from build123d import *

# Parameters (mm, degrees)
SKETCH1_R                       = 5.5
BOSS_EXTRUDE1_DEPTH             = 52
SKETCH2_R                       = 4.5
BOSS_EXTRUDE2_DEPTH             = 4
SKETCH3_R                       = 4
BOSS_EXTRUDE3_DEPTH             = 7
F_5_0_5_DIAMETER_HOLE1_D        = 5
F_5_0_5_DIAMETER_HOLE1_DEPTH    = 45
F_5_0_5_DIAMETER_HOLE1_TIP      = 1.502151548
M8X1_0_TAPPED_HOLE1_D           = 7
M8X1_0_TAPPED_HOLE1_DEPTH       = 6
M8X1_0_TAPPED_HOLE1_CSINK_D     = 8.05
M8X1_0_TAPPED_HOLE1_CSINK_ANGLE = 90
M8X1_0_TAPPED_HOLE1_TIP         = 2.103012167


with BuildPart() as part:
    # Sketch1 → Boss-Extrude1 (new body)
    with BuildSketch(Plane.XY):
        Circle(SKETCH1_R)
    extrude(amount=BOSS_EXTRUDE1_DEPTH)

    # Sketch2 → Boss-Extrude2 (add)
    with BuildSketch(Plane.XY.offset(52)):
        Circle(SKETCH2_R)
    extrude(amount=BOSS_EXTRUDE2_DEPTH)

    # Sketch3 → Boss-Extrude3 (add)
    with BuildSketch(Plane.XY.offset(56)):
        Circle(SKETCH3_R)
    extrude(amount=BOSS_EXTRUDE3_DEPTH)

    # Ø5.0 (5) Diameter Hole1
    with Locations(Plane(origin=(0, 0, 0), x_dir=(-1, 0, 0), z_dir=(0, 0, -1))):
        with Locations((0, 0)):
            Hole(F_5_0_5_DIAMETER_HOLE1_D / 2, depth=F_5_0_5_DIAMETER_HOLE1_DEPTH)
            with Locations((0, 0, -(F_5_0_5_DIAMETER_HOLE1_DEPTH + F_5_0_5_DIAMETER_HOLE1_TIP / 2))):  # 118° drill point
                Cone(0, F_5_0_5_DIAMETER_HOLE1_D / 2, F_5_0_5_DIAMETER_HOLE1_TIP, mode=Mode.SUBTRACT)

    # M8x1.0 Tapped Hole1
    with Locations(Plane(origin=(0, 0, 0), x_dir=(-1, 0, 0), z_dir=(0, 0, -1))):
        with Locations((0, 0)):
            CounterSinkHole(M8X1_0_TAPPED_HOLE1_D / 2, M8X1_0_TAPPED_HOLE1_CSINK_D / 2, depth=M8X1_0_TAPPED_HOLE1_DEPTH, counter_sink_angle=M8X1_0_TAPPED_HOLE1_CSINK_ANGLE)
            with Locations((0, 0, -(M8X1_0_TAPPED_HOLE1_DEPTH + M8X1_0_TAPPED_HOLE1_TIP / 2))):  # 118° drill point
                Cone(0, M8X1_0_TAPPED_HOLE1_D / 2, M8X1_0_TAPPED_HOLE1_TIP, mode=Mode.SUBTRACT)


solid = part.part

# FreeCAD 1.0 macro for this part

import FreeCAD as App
import Part
import Sketcher
from FreeCAD import Vector
Q = App.Units.Quantity

doc = App.newDocument("Part")
body = doc.addObject("PartDesign::Body", "Body")

# Sketch on XY plane
sketch1 = body.newObject("Sketcher::SketchObject", "Sketch")
sketch1.AttachmentSupport = (doc.getObject("XY_Plane"), [""])
sketch1.MapMode = "FlatFace"
sketch1.addGeometry(Part.Circle(Vector(0, 0, 0), Vector(0, 0, 1), 6), False)
sketch1.addConstraint([
    Sketcher.Constraint("Coincident", 0, 3, -1, 1),
    Sketcher.Constraint("Diameter", 0, Q("11 mm")),
])
pad1 = body.newObject("PartDesign::Pad", "Pad")
pad1.Profile = sketch1
pad1.Length = 52

# Sketch on XY plane
sketch2 = body.newObject("Sketcher::SketchObject", "Sketch001")
sketch2.AttachmentSupport = (doc.getObject("XY_Plane"), [""])
sketch2.MapMode = "FlatFace"
sketch2.AttachmentOffset = App.Placement(Vector(0, 0, 52), App.Rotation())
sketch2.addGeometry(Part.Circle(Vector(0, 0, 0), Vector(0, 0, 1), 4.5), False)
sketch2.addConstraint([
    Sketcher.Constraint("Coincident", 0, 3, -1, 1),
    Sketcher.Constraint("Diameter", 0, Q("9 mm")),
])
pad2 = body.newObject("PartDesign::Pad", "Pad001")
pad2.Profile = sketch2
pad2.Length = 4

# Sketch on XY plane
sketch3 = body.newObject("Sketcher::SketchObject", "Sketch002")
sketch3.AttachmentSupport = (doc.getObject("XY_Plane"), [""])
sketch3.MapMode = "FlatFace"
sketch3.AttachmentOffset = App.Placement(Vector(0, 0, 56), App.Rotation())
sketch3.addGeometry(Part.Circle(Vector(0, 0, 0), Vector(0, 0, 1), 4), False)
sketch3.addConstraint([
    Sketcher.Constraint("Coincident", 0, 3, -1, 1),
    Sketcher.Constraint("Diameter", 0, Q("8 mm")),
])
pad3 = body.newObject("PartDesign::Pad", "Pad002")
pad3.Profile = sketch3
pad3.Length = 7

# Sketch on XY plane
sketch4 = body.newObject("Sketcher::SketchObject", "Sketch003")
sketch4.AttachmentSupport = (doc.getObject("XY_Plane"), [""])
sketch4.MapMode = "FlatFace"
sketch4.addGeometry(Part.Circle(Vector(0, 0, 0), Vector(0, 0, 1), 2.5), False)
sketch4.addConstraint([
    Sketcher.Constraint("Coincident", 0, 3, -1, 1),
    Sketcher.Constraint("Diameter", 0, Q("5 mm")),
])
doc.recompute()
hole = body.newObject("PartDesign::Hole", "Hole")
hole.Profile = sketch4
hole.ThreadType = "None"
hole.Diameter = 5
hole.DepthType = "Dimension"
hole.Depth = 45
hole.DrillPoint = "Angled"
hole.DrillPointAngle = 118
hole.Reversed = True

# Sketch on XY plane
sketch5 = body.newObject("Sketcher::SketchObject", "Sketch004")
sketch5.AttachmentSupport = (doc.getObject("XY_Plane"), [""])
sketch5.MapMode = "FlatFace"
sketch5.addGeometry(Part.Circle(Vector(0, 0, 0), Vector(0, 0, 1), 3.5), False)
sketch5.addConstraint([
    Sketcher.Constraint("Coincident", 0, 3, -1, 1),
    Sketcher.Constraint("Diameter", 0, Q("7 mm")),
])
doc.recompute()
hole2 = body.newObject("PartDesign::Hole", "Hole001")
hole2.Profile = sketch5
hole2.ThreadType = "None"
hole2.Diameter = 7
hole2.DepthType = "Dimension"
hole2.Depth = 6
hole2.DrillPoint = "Angled"
hole2.DrillPointAngle = 118
hole2.HoleCutType = "Countersink"
hole2.HoleCutDiameter = 8.05
hole2.HoleCutCountersinkAngle = 90
hole2.Reversed = True

doc.recompute()
